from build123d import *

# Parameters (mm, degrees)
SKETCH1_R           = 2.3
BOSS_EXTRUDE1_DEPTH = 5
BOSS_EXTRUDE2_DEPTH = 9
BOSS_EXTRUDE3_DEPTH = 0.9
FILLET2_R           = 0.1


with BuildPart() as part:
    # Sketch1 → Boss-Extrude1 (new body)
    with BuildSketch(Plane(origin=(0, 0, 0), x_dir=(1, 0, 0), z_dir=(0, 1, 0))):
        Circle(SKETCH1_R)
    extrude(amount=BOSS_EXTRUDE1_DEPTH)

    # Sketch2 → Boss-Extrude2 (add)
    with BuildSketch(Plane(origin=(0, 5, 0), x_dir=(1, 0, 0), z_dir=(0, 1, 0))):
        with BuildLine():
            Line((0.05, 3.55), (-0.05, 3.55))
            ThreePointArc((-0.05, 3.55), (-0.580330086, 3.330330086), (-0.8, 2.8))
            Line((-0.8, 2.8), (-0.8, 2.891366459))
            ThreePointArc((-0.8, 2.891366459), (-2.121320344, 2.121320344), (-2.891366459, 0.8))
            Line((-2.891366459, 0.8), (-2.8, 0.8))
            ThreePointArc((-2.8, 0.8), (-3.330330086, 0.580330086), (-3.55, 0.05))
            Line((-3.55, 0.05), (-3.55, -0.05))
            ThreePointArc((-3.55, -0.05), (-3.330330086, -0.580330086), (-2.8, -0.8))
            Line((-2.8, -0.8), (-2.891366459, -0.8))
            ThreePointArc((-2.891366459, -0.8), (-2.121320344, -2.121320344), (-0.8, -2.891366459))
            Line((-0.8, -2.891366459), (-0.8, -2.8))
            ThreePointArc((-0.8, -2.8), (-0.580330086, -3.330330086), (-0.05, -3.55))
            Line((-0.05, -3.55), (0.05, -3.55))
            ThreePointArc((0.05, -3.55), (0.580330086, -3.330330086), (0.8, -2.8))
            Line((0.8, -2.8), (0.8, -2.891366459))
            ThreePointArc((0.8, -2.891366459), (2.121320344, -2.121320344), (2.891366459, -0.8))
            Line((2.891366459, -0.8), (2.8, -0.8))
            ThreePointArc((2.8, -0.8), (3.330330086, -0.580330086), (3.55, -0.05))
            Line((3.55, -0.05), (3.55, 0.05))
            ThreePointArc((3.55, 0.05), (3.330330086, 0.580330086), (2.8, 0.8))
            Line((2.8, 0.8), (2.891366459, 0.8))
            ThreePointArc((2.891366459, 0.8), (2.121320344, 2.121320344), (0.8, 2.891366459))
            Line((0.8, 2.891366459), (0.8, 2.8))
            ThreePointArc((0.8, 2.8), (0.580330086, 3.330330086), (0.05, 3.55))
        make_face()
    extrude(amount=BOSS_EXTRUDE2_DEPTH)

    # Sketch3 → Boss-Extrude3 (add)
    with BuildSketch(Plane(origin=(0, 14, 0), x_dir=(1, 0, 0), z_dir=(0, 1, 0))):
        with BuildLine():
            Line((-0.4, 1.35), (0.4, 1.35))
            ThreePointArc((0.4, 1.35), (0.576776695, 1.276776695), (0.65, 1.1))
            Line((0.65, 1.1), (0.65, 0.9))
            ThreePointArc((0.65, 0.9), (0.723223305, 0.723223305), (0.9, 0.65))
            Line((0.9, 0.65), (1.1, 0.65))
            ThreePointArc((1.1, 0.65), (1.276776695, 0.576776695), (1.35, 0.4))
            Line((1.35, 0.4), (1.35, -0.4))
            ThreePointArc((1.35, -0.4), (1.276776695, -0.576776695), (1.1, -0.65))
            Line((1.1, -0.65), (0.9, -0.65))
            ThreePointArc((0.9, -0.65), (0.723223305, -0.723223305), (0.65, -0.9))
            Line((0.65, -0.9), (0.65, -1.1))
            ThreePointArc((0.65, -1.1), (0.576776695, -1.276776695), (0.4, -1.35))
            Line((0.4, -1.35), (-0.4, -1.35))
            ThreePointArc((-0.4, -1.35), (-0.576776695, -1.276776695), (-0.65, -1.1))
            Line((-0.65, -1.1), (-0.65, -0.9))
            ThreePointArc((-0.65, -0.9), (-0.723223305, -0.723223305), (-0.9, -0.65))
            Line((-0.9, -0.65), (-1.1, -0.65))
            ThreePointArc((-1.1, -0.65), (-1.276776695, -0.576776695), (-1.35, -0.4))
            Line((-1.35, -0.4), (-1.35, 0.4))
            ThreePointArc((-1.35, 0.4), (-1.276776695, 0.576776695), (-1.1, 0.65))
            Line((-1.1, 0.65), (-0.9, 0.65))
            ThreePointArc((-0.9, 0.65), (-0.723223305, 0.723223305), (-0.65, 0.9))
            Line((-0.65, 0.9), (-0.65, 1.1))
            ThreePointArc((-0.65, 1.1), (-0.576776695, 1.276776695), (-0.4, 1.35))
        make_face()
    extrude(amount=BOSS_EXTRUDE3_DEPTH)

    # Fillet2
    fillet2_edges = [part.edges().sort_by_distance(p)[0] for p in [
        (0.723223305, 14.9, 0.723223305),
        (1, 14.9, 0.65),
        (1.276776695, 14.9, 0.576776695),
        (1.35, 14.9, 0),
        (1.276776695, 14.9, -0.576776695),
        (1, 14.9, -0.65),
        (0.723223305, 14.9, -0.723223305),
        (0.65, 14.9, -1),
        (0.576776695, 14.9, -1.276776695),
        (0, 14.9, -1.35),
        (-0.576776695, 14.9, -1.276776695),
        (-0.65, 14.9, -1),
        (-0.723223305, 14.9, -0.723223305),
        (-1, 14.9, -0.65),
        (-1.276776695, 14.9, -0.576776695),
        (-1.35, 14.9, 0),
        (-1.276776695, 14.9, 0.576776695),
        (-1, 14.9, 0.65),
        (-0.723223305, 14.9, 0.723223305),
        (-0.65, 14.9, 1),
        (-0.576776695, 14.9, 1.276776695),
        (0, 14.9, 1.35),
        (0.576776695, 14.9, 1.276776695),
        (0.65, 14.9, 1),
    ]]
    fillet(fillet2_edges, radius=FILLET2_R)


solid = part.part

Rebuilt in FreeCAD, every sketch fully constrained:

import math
import FreeCAD as App
import Part
import Sketcher

V = App.Vector


def edges_at(feature, points):
    """Names of the edges that pass closest to the given points."""
    edges = feature.Shape.Edges
    near = lambda p: min(range(len(edges)), key=lambda i: edges[i].distToShape(Part.Vertex(*p))[0])
    return sorted({f"Edge{near(p) + 1}" for p in points})

doc = App.newDocument("Part")
body = doc.addObject("PartDesign::Body", "Body")

# Sketch on XZ plane
sketch1 = body.newObject("Sketcher::SketchObject", "Sketch")
sketch1.AttachmentSupport = (doc.getObject("XZ_Plane"), [""])
sketch1.MapMode = "FlatFace"
sketch1.addGeometry(Part.Circle(V(0, 0, 0), V(0, 0, 1), 2.3), False)
sketch1.addConstraint([
    Sketcher.Constraint("Coincident", 0, 3, -1, 1),
    Sketcher.Constraint("Diameter", 0, 4.6),
])
pad1 = body.newObject("PartDesign::Pad", "Pad")
pad1.Profile = sketch1
pad1.Length = 5
pad1.Reversed = True

# Sketch on XZ plane
sketch2 = body.newObject("Sketcher::SketchObject", "Sketch001")
sketch2.AttachmentSupport = (doc.getObject("XZ_Plane"), [""])
sketch2.MapMode = "FlatFace"
sketch2.AttachmentOffset = App.Placement(V(0, 0, -5), App.Rotation())
sketch2.addGeometry([
    Part.LineSegment(V(0.05, -3.55, 0), V(-0.05, -3.55, 0)),  # 0
    Part.ArcOfCircle(Part.Circle(V(-0.05, -2.8, 0), V(0, 0, 1), 0.75), math.radians(180), math.radians(270)),  # 1
    Part.LineSegment(V(-0.8, -2.8, 0), V(-0.8, -2.891366, 0)),  # 2
    Part.ArcOfCircle(Part.Circle(V(0, 0, 0), V(0, 0, 1), 3), math.radians(-164.53399), math.radians(-105.46601)),  # 3
    Part.LineSegment(V(-2.891366, -0.8, 0), V(-2.8, -0.8, 0)),  # 4
    Part.ArcOfCircle(Part.Circle(V(-2.8, -0.05, 0), V(0, 0, 1), 0.75), math.radians(180), math.radians(270)),  # 5
    Part.LineSegment(V(-3.55, -0.05, 0), V(-3.55, 0.05, 0)),  # 6
    Part.ArcOfCircle(Part.Circle(V(-2.8, 0.05, 0), V(0, 0, 1), 0.75), math.radians(90), math.radians(180)),  # 7
    Part.LineSegment(V(-2.8, 0.8, 0), V(-2.891366, 0.8, 0)),  # 8
    Part.ArcOfCircle(Part.Circle(V(0, 0, 0), V(0, 0, 1), 3), math.radians(105.46601), math.radians(164.53399)),  # 9
    Part.LineSegment(V(-0.8, 2.891366, 0), V(-0.8, 2.8, 0)),  # 10
    Part.ArcOfCircle(Part.Circle(V(-0.05, 2.8, 0), V(0, 0, 1), 0.75), math.radians(90), math.radians(180)),  # 11
    Part.LineSegment(V(-0.05, 3.55, 0), V(0.05, 3.55, 0)),  # 12
    Part.ArcOfCircle(Part.Circle(V(0.05, 2.8, 0), V(0, 0, 1), 0.75), math.radians(0), math.radians(90)),  # 13
    Part.LineSegment(V(0.8, 2.8, 0), V(0.8, 2.891366, 0)),  # 14
    Part.ArcOfCircle(Part.Circle(V(0, 0, 0), V(0, 0, 1), 3), math.radians(15.46601), math.radians(74.53399)),  # 15
    Part.LineSegment(V(2.891366, 0.8, 0), V(2.8, 0.8, 0)),  # 16
    Part.ArcOfCircle(Part.Circle(V(2.8, 0.05, 0), V(0, 0, 1), 0.75), math.radians(0), math.radians(90)),  # 17
    Part.LineSegment(V(3.55, 0.05, 0), V(3.55, -0.05, 0)),  # 18
    Part.ArcOfCircle(Part.Circle(V(2.8, -0.05, 0), V(0, 0, 1), 0.75), math.radians(-90), math.radians(0)),  # 19
    Part.LineSegment(V(2.8, -0.8, 0), V(2.891366, -0.8, 0)),  # 20
    Part.ArcOfCircle(Part.Circle(V(0, 0, 0), V(0, 0, 1), 3), math.radians(-74.53399), math.radians(-15.46601)),  # 21
    Part.LineSegment(V(0.8, -2.891366, 0), V(0.8, -2.8, 0)),  # 22
    Part.ArcOfCircle(Part.Circle(V(0.05, -2.8, 0), V(0, 0, 1), 0.75), math.radians(-90), math.radians(0)),  # 23
], False)
sketch2.addConstraint([
    Sketcher.Constraint("Tangent", 0, 2, 1, 2),
    Sketcher.Constraint("Tangent", 1, 1, 2, 1),
    Sketcher.Constraint("Coincident", 2, 2, 3, 2),
    Sketcher.Constraint("Coincident", 3, 1, 4, 1),
    Sketcher.Constraint("Tangent", 4, 2, 5, 2),
    Sketcher.Constraint("Tangent", 5, 1, 6, 1),
    Sketcher.Constraint("Tangent", 6, 2, 7, 2),
    Sketcher.Constraint("Tangent", 7, 1, 8, 1),
    Sketcher.Constraint("Coincident", 8, 2, 9, 2),
    Sketcher.Constraint("Coincident", 9, 1, 10, 1),
    Sketcher.Constraint("Tangent", 10, 2, 11, 2),
    Sketcher.Constraint("Tangent", 11, 1, 12, 1),
    Sketcher.Constraint("Tangent", 12, 2, 13, 2),
    Sketcher.Constraint("Tangent", 13, 1, 14, 1),
    Sketcher.Constraint("Coincident", 14, 2, 15, 2),
    Sketcher.Constraint("Coincident", 15, 1, 16, 1),
    Sketcher.Constraint("Tangent", 16, 2, 17, 2),
    Sketcher.Constraint("Tangent", 17, 1, 18, 1),
    Sketcher.Constraint("Tangent", 18, 2, 19, 2),
    Sketcher.Constraint("Tangent", 19, 1, 20, 1),
    Sketcher.Constraint("Coincident", 20, 2, 21, 2),
    Sketcher.Constraint("Coincident", 21, 1, 22, 1),
    Sketcher.Constraint("Tangent", 22, 2, 23, 2),
    Sketcher.Constraint("Tangent", 23, 1, 0, 1),
    Sketcher.Constraint("Horizontal", 0),
    Sketcher.Constraint("Vertical", 2),
    Sketcher.Constraint("Horizontal", 4),
    Sketcher.Constraint("Vertical", 6),
    Sketcher.Constraint("Horizontal", 8),
    Sketcher.Constraint("Vertical", 10),
    Sketcher.Constraint("Horizontal", 12),
    Sketcher.Constraint("Vertical", 14),
    Sketcher.Constraint("Horizontal", 16),
    Sketcher.Constraint("Vertical", 18),
    Sketcher.Constraint("Horizontal", 20),
    Sketcher.Constraint("Vertical", 22),
    Sketcher.Constraint("Coincident", 3, 3, -1, 1),
    Sketcher.Constraint("Coincident", 9, 3, -1, 1),
    Sketcher.Constraint("Coincident", 15, 3, -1, 1),
    Sketcher.Constraint("Coincident", 21, 3, -1, 1),
    Sketcher.Constraint("Equal", 1, 5),
    Sketcher.Constraint("Equal", 5, 7),
    Sketcher.Constraint("Equal", 3, 9),
    Sketcher.Constraint("Equal", 7, 11),
    Sketcher.Constraint("Equal", 11, 13),
    Sketcher.Constraint("Equal", 9, 15),
    Sketcher.Constraint("Equal", 13, 17),
    Sketcher.Constraint("Equal", 17, 19),
    Sketcher.Constraint("Equal", 15, 21),
    Sketcher.Constraint("Equal", 19, 23),
    Sketcher.Constraint("Symmetric", 1, 3, 13, 3, -1, 1),
    Sketcher.Constraint("Symmetric", 5, 3, 17, 3, -1, 1),
    Sketcher.Constraint("Horizontal", 7, 3, 17, 3),
    Sketcher.Constraint("Horizontal", 5, 3, 19, 3),
    Sketcher.Constraint("Horizontal", 9, 1, 14, 2),
    Sketcher.Constraint("Horizontal", 2, 2, 21, 1),
    Sketcher.Constraint("Equal", 20, 2),
    Sketcher.Constraint("Equal", 12, 6),
    Sketcher.Constraint("Radius", 3, 3.0),
    Sketcher.Constraint("Radius", 1, 0.75),
    Sketcher.Constraint("DistanceX", 0, 2, 0, 1, 0.1),
    Sketcher.Constraint("DistanceY", 1, 1, 3, 1, 2.0),
])
pad2 = body.newObject("PartDesign::Pad", "Pad001")
pad2.Profile = sketch2
pad2.Length = 9
pad2.Reversed = True

# Sketch on XZ plane
sketch3 = body.newObject("Sketcher::SketchObject", "Sketch002")
sketch3.AttachmentSupport = (doc.getObject("XZ_Plane"), [""])
sketch3.MapMode = "FlatFace"
sketch3.AttachmentOffset = App.Placement(V(0, 0, -14), App.Rotation())
sketch3.addGeometry([
    Part.LineSegment(V(0.4, -1.35, 0), V(-0.4, -1.35, 0)),  # 0
    Part.ArcOfCircle(Part.Circle(V(-0.4, -1.1, 0), V(0, 0, 1), 0.25), math.radians(-180), math.radians(-90)),  # 1
    Part.LineSegment(V(-0.65, -1.1, 0), V(-0.65, -0.9, 0)),  # 2
    Part.ArcOfCircle(Part.Circle(V(-0.9, -0.9, 0), V(0, 0, 1), 0.25), math.radians(0), math.radians(90)),  # 3
    Part.LineSegment(V(-0.9, -0.65, 0), V(-1.1, -0.65, 0)),  # 4
    Part.ArcOfCircle(Part.Circle(V(-1.1, -0.4, 0), V(0, 0, 1), 0.25), math.radians(-180), math.radians(-90)),  # 5
    Part.LineSegment(V(-1.35, -0.4, 0), V(-1.35, 0.4, 0)),  # 6
    Part.ArcOfCircle(Part.Circle(V(-1.1, 0.4, 0), V(0, 0, 1), 0.25), math.radians(90), math.radians(180)),  # 7
    Part.LineSegment(V(-1.1, 0.65, 0), V(-0.9, 0.65, 0)),  # 8
    Part.ArcOfCircle(Part.Circle(V(-0.9, 0.9, 0), V(0, 0, 1), 0.25), math.radians(-90), math.radians(0)),  # 9
    Part.LineSegment(V(-0.65, 0.9, 0), V(-0.65, 1.1, 0)),  # 10
    Part.ArcOfCircle(Part.Circle(V(-0.4, 1.1, 0), V(0, 0, 1), 0.25), math.radians(90), math.radians(180)),  # 11
    Part.LineSegment(V(-0.4, 1.35, 0), V(0.4, 1.35, 0)),  # 12
    Part.ArcOfCircle(Part.Circle(V(0.4, 1.1, 0), V(0, 0, 1), 0.25), math.radians(0), math.radians(90)),  # 13
    Part.LineSegment(V(0.65, 1.1, 0), V(0.65, 0.9, 0)),  # 14
    Part.ArcOfCircle(Part.Circle(V(0.9, 0.9, 0), V(0, 0, 1), 0.25), math.radians(-180), math.radians(-90)),  # 15
    Part.LineSegment(V(0.9, 0.65, 0), V(1.1, 0.65, 0)),  # 16
    Part.ArcOfCircle(Part.Circle(V(1.1, 0.4, 0), V(0, 0, 1), 0.25), math.radians(0), math.radians(90)),  # 17
    Part.LineSegment(V(1.35, 0.4, 0), V(1.35, -0.4, 0)),  # 18
    Part.ArcOfCircle(Part.Circle(V(1.1, -0.4, 0), V(0, 0, 1), 0.25), math.radians(-90), math.radians(0)),  # 19
    Part.LineSegment(V(1.1, -0.65, 0), V(0.9, -0.65, 0)),  # 20
    Part.ArcOfCircle(Part.Circle(V(0.9, -0.9, 0), V(0, 0, 1), 0.25), math.radians(90), math.radians(180)),  # 21
    Part.LineSegment(V(0.65, -0.9, 0), V(0.65, -1.1, 0)),  # 22
    Part.ArcOfCircle(Part.Circle(V(0.4, -1.1, 0), V(0, 0, 1), 0.25), math.radians(-90), math.radians(0)),  # 23
], False)
sketch3.addConstraint([
    Sketcher.Constraint("Tangent", 0, 2, 1, 2),
    Sketcher.Constraint("Tangent", 1, 1, 2, 1),
    Sketcher.Constraint("Tangent", 2, 2, 3, 1),
    Sketcher.Constraint("Tangent", 3, 2, 4, 1),
    Sketcher.Constraint("Tangent", 4, 2, 5, 2),
    Sketcher.Constraint("Tangent", 5, 1, 6, 1),
    Sketcher.Constraint("Tangent", 6, 2, 7, 2),
    Sketcher.Constraint("Tangent", 7, 1, 8, 1),
    Sketcher.Constraint("Tangent", 8, 2, 9, 1),
    Sketcher.Constraint("Tangent", 9, 2, 10, 1),
    Sketcher.Constraint("Tangent", 10, 2, 11, 2),
    Sketcher.Constraint("Tangent", 11, 1, 12, 1),
    Sketcher.Constraint("Tangent", 12, 2, 13, 2),
    Sketcher.Constraint("Tangent", 13, 1, 14, 1),
    Sketcher.Constraint("Tangent", 14, 2, 15, 1),
    Sketcher.Constraint("Tangent", 15, 2, 16, 1),
    Sketcher.Constraint("Tangent", 16, 2, 17, 2),
    Sketcher.Constraint("Tangent", 17, 1, 18, 1),
    Sketcher.Constraint("Tangent", 18, 2, 19, 2),
    Sketcher.Constraint("Tangent", 19, 1, 20, 1),
    Sketcher.Constraint("Tangent", 20, 2, 21, 1),
    Sketcher.Constraint("Tangent", 21, 2, 22, 1),
    Sketcher.Constraint("Tangent", 22, 2, 23, 2),
    Sketcher.Constraint("Tangent", 23, 1, 0, 1),
    Sketcher.Constraint("Horizontal", 0),
    Sketcher.Constraint("Vertical", 2),
    Sketcher.Constraint("Horizontal", 4),
    Sketcher.Constraint("Vertical", 6),
    Sketcher.Constraint("Horizontal", 8),
    Sketcher.Constraint("Vertical", 10),
    Sketcher.Constraint("Horizontal", 12),
    Sketcher.Constraint("Vertical", 14),
    Sketcher.Constraint("Horizontal", 16),
    Sketcher.Constraint("Vertical", 18),
    Sketcher.Constraint("Horizontal", 20),
    Sketcher.Constraint("Vertical", 22),
    Sketcher.Constraint("Equal", 1, 3),
    Sketcher.Constraint("Equal", 3, 5),
    Sketcher.Constraint("Equal", 5, 7),
    Sketcher.Constraint("Equal", 7, 9),
    Sketcher.Constraint("Equal", 9, 11),
    Sketcher.Constraint("Equal", 11, 13),
    Sketcher.Constraint("Equal", 13, 15),
    Sketcher.Constraint("Equal", 15, 17),
    Sketcher.Constraint("Equal", 17, 19),
    Sketcher.Constraint("Equal", 19, 21),
    Sketcher.Constraint("Equal", 21, 23),
    Sketcher.Constraint("Symmetric", 1, 3, 13, 3, -1, 1),
    Sketcher.Constraint("Symmetric", 5, 3, 17, 3, -1, 1),
    Sketcher.Constraint("Symmetric", 9, 3, 21, 3, -1, 1),
    Sketcher.Constraint("Symmetric", 9, 3, 15, 3, -2),
    Sketcher.Constraint("Equal", 20, 2),
    Sketcher.Constraint("Equal", 12, 6),
    Sketcher.Constraint("Radius", 1, 0.25),
    Sketcher.Constraint("DistanceX", 0, 2, 0, 1, 0.8),
    Sketcher.Constraint("DistanceX", 4, 2, 4, 1, 0.2),
])
pad3 = body.newObject("PartDesign::Pad", "Pad002")
pad3.Profile = sketch3
pad3.Length = 0.9
pad3.Reversed = True
doc.recompute()

fillet = body.newObject("PartDesign::Fillet", "Fillet")
fillet.Base = (pad3, edges_at(pad3, [
    (0.723, 14.9, 0.723),
    (1, 14.9, 0.65),
    (1.277, 14.9, 0.577),
    (1.35, 14.9, 0),
    (1.277, 14.9, -0.577),
    (1, 14.9, -0.65),
    (0.723, 14.9, -0.723),
    (0.65, 14.9, -1),
    (0.577, 14.9, -1.277),
    (0, 14.9, -1.35),
    (-0.577, 14.9, -1.277),
    (-0.65, 14.9, -1),
    (-0.723, 14.9, -0.723),
    (-1, 14.9, -0.65),
    (-1.277, 14.9, -0.577),
    (-1.35, 14.9, 0),
    (-1.277, 14.9, 0.577),
    (-1, 14.9, 0.65),
    (-0.723, 14.9, 0.723),
    (-0.65, 14.9, 1),
    (-0.577, 14.9, 1.277),
    (0, 14.9, 1.35),
    (0.577, 14.9, 1.277),
    (0.65, 14.9, 1),
]))
fillet.Radius = 0.1

doc.recompute()
